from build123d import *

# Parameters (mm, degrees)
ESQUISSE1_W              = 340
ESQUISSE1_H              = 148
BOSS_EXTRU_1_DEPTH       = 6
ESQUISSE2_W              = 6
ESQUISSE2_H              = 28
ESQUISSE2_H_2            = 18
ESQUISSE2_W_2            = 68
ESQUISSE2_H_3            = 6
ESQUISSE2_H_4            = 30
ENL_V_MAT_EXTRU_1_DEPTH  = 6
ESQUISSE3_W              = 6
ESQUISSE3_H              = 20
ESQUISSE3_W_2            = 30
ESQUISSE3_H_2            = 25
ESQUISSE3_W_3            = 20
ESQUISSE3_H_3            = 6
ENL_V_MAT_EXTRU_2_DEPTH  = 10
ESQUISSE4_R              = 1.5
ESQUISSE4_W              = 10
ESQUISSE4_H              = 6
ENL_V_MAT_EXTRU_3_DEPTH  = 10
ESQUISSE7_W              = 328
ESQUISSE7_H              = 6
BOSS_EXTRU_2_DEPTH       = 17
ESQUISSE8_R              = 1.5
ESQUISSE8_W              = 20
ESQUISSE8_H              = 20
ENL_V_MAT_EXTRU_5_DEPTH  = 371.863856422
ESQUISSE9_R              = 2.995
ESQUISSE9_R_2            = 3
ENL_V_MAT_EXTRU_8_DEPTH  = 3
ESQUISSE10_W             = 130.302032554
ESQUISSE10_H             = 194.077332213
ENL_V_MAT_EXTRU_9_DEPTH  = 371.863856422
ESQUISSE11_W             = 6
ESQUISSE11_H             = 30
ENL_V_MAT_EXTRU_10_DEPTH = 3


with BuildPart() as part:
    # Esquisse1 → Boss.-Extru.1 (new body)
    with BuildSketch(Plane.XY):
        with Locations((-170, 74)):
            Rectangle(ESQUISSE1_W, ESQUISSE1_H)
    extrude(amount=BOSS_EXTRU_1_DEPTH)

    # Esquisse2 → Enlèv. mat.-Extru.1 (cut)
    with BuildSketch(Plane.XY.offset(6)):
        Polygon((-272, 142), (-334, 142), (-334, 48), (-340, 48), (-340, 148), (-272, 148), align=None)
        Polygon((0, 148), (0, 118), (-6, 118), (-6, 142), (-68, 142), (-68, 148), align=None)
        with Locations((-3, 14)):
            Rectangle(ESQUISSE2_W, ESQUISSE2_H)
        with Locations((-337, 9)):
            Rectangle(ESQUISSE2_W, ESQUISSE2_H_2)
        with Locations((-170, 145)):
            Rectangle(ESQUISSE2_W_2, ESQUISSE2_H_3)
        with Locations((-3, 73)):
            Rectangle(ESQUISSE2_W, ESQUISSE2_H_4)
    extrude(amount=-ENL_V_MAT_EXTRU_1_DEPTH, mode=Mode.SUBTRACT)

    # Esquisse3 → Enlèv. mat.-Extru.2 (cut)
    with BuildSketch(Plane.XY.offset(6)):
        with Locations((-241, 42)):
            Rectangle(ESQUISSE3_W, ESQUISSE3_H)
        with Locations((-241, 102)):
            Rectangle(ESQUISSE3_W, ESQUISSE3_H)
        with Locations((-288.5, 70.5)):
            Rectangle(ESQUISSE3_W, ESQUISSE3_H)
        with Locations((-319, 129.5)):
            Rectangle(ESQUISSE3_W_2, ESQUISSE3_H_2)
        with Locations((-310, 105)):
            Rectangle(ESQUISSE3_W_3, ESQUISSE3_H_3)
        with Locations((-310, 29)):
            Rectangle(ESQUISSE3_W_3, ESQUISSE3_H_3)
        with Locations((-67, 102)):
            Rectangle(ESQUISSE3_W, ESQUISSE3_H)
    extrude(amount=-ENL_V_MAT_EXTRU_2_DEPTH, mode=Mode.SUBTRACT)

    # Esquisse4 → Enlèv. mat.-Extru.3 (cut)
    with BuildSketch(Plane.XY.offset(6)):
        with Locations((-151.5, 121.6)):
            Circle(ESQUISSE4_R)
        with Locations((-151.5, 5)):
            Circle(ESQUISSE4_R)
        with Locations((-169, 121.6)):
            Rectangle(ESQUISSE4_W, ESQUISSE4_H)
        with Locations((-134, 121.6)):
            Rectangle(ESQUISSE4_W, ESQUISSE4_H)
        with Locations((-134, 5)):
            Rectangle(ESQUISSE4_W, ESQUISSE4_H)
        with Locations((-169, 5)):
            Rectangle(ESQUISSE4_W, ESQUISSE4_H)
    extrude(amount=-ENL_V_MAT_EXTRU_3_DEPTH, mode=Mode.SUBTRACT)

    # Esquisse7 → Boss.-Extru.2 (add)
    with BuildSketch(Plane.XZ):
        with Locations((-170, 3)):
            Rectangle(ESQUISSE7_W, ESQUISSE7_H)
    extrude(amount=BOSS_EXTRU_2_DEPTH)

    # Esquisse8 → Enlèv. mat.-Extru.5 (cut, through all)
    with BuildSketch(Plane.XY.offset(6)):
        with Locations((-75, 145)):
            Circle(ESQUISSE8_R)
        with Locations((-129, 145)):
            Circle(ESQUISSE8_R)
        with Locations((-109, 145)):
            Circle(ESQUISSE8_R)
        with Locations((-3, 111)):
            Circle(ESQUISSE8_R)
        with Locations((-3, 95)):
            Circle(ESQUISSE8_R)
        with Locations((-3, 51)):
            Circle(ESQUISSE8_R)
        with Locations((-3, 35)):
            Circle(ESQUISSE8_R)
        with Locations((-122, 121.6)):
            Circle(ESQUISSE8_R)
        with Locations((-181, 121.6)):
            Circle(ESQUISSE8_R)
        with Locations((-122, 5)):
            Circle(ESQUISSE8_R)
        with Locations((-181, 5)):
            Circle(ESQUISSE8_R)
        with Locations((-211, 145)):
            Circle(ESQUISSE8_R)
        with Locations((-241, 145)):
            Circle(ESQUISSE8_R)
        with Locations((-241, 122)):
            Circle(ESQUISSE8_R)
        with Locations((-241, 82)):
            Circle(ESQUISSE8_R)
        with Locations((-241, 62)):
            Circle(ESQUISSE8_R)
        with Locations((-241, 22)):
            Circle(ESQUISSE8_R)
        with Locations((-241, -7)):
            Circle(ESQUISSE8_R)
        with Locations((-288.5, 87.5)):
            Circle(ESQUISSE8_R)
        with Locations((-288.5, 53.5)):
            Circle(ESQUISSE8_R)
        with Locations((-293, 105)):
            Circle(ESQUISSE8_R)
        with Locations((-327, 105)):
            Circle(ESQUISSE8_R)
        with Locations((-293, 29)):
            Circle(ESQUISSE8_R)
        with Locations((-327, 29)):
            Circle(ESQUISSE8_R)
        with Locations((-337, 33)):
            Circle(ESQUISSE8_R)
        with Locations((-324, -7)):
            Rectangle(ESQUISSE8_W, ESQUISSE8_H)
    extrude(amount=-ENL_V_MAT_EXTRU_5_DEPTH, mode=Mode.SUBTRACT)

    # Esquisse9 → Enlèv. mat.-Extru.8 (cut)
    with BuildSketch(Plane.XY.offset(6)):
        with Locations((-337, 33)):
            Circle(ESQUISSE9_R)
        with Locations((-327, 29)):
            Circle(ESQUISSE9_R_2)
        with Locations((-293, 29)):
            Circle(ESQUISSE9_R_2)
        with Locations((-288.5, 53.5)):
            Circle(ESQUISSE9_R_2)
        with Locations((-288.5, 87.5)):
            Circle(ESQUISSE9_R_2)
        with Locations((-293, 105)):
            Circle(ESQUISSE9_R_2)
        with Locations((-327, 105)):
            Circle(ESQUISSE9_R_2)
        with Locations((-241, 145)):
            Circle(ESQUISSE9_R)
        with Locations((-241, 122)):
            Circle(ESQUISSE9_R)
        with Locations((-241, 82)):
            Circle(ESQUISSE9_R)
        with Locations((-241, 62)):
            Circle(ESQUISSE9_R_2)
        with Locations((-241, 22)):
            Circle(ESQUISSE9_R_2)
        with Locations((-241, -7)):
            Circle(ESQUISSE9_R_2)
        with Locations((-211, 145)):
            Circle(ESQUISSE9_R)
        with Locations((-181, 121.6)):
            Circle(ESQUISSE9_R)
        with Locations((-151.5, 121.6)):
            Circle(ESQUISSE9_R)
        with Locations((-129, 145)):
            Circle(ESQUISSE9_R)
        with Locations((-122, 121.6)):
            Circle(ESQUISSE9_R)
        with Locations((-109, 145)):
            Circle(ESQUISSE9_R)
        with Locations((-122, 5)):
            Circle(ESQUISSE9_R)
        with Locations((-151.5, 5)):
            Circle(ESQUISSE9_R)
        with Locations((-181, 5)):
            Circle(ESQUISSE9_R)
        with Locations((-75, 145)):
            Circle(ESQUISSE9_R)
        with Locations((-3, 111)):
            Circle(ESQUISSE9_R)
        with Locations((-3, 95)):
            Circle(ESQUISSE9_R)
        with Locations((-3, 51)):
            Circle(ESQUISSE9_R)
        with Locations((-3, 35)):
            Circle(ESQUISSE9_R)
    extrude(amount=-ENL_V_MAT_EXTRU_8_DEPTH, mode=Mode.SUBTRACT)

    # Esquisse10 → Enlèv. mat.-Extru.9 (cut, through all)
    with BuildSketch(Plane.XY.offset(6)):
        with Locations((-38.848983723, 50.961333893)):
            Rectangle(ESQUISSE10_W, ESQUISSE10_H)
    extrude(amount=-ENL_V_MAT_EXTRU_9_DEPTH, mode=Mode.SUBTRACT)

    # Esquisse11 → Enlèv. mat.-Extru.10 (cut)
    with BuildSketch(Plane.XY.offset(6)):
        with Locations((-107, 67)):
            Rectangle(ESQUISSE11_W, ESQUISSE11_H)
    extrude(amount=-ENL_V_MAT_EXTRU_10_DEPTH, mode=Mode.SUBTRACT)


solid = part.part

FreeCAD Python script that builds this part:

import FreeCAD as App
import Part
import Sketcher
from FreeCAD import Vector
Q = App.Units.Quantity


def add_polygon(sketch, points):
    """Adds a closed chain of lines whose ends are joined by coincident constraints."""
    first, n = sketch.GeometryCount, len(points)
    for a, b in zip(points, points[1:] + points[:1]):
        sketch.addGeometry(Part.LineSegment(App.Vector(*a, 0), App.Vector(*b, 0)), False)
    for i in range(n):
        sketch.addConstraint(Sketcher.Constraint("Coincident", first + i, 2, first + (i + 1) % n, 1))

doc = App.newDocument("Part")
body = doc.addObject("PartDesign::Body", "Body")

sketch1 = body.newObject("Sketcher::SketchObject", "Sketch")
sketch1.AttachmentSupport = (doc.getObject("XY_Plane"), [""])
sketch1.MapMode = "FlatFace"
add_polygon(sketch1, [(-340, 148), (-340, 0), (0, 0), (0, 148)])
sketch1.addConstraint(Sketcher.Constraint("Vertical", 0))
sketch1.addConstraint(Sketcher.Constraint("Horizontal", 1))
sketch1.addConstraint(Sketcher.Constraint("Vertical", 2))
sketch1.addConstraint(Sketcher.Constraint("Horizontal", 3))
sketch1.addConstraint(Sketcher.Constraint("Coincident", 1, 2, -1, 1))
sketch1.addConstraint(Sketcher.Constraint("DistanceX", 1, 1, 1, 2, Q("340 mm")))
sketch1.addConstraint(Sketcher.Constraint("DistanceY", 0, 2, 0, 1, Q("148 mm")))
pad1 = body.newObject("PartDesign::Pad", "Pad")
pad1.Profile = sketch1
pad1.Length = 6

sketch2 = body.newObject("Sketcher::SketchObject", "Sketch001")
sketch2.AttachmentSupport = (doc.getObject("XY_Plane"), [""])
sketch2.MapMode = "FlatFace"
sketch2.AttachmentOffset = App.Placement(Vector(0, 0, 6), App.Rotation())
add_polygon(sketch2, [(-334, 142), (-272, 142), (-272, 148), (-340, 148), (-340, 48), (-334, 48)])
add_polygon(sketch2, [(0, 118), (0, 148), (-68, 148), (-68, 142), (-6, 142), (-6, 118)])
add_polygon(sketch2, [(-6, 28), (-6, 0), (0, 0), (0, 28)])
add_polygon(sketch2, [(-340, 18), (-340, 0), (-334, 0), (-334, 18)])
add_polygon(sketch2, [(-204, 148), (-204, 142), (-136, 142), (-136, 148)])
add_polygon(sketch2, [(-6, 88), (-6, 58), (0, 58), (0, 88)])
sketch2.addConstraint(Sketcher.Constraint("Horizontal", 0))
sketch2.addConstraint(Sketcher.Constraint("Vertical", 1))
sketch2.addConstraint(Sketcher.Constraint("Horizontal", 2))
sketch2.addConstraint(Sketcher.Constraint("Vertical", 3))
sketch2.addConstraint(Sketcher.Constraint("Horizontal", 4))
sketch2.addConstraint(Sketcher.Constraint("Vertical", 5))
sketch2.addConstraint(Sketcher.Constraint("Vertical", 6))
sketch2.addConstraint(Sketcher.Constraint("Horizontal", 7))
sketch2.addConstraint(Sketcher.Constraint("Vertical", 8))
sketch2.addConstraint(Sketcher.Constraint("Horizontal", 9))
sketch2.addConstraint(Sketcher.Constraint("Vertical", 10))
sketch2.addConstraint(Sketcher.Constraint("Horizontal", 11))
sketch2.addConstraint(Sketcher.Constraint("Vertical", 12))
sketch2.addConstraint(Sketcher.Constraint("Horizontal", 13))
sketch2.addConstraint(Sketcher.Constraint("Vertical", 14))
sketch2.addConstraint(Sketcher.Constraint("Horizontal", 15))
sketch2.addConstraint(Sketcher.Constraint("Vertical", 16))
sketch2.addConstraint(Sketcher.Constraint("Horizontal", 17))
sketch2.addConstraint(Sketcher.Constraint("Vertical", 18))
sketch2.addConstraint(Sketcher.Constraint("Horizontal", 19))
sketch2.addConstraint(Sketcher.Constraint("Vertical", 20))
sketch2.addConstraint(Sketcher.Constraint("Horizontal", 21))
sketch2.addConstraint(Sketcher.Constraint("Vertical", 22))
sketch2.addConstraint(Sketcher.Constraint("Horizontal", 23))
sketch2.addConstraint(Sketcher.Constraint("Vertical", 24))
sketch2.addConstraint(Sketcher.Constraint("Horizontal", 25))
sketch2.addConstraint(Sketcher.Constraint("Vertical", 26))
sketch2.addConstraint(Sketcher.Constraint("Horizontal", 27))
sketch2.addConstraint(Sketcher.Constraint("Coincident", 13, 2, -1, 1))
sketch2.addConstraint(Sketcher.Constraint("PointOnObject", 6, 2, -2))
sketch2.addConstraint(Sketcher.Constraint("PointOnObject", 16, 2, -1))
sketch2.addConstraint(Sketcher.Constraint("PointOnObject", 25, 2, -2))
sketch2.addConstraint(Sketcher.Constraint("Horizontal", 2, 2, 6, 2))
sketch2.addConstraint(Sketcher.Constraint("Horizontal", 5, 2, 8, 2))
sketch2.addConstraint(Sketcher.Constraint("Horizontal", 9, 2, 20, 2))
sketch2.addConstraint(Sketcher.Constraint("Horizontal", 7, 2, 22, 2))
sketch2.addConstraint(Sketcher.Constraint("Vertical", 10, 2, 12, 2))
sketch2.addConstraint(Sketcher.Constraint("Vertical", 3, 2, 16, 2))
sketch2.addConstraint(Sketcher.Constraint("Vertical", 5, 2, 17, 2))
sketch2.addConstraint(Sketcher.Constraint("Vertical", 15, 2, 24, 2))
sketch2.addConstraint(Sketcher.Constraint("Equal", 2, 7))
sketch2.addConstraint(Sketcher.Constraint("Equal", 0, 9))
sketch2.addConstraint(Sketcher.Constraint("Equal", 7, 21))
sketch2.addConstraint(Sketcher.Constraint("Equal", 27, 1))
sketch2.addConstraint(Sketcher.Constraint("Equal", 6, 24))
sketch2.addConstraint(Sketcher.Constraint("DistanceX", 0, 1, 0, 2, Q("62 mm")))
sketch2.addConstraint(Sketcher.Constraint("DistanceX", 2, 2, 2, 1, Q("68 mm")))
sketch2.addConstraint(Sketcher.Constraint("DistanceY", 3, 2, 3, 1, Q("100 mm")))
sketch2.addConstraint(Sketcher.Constraint("DistanceY", 6, 1, 6, 2, Q("30 mm")))
sketch2.addConstraint(Sketcher.Constraint("DistanceY", 12, 2, 12, 1, Q("28 mm")))
sketch2.addConstraint(Sketcher.Constraint("DistanceY", 16, 2, 16, 1, Q("18 mm")))
sketch2.addConstraint(Sketcher.Constraint("DistanceX", 0, 2, -1, 1, Q("272 mm")))
sketch2.addConstraint(Sketcher.Constraint("DistanceY", -1, 1, 0, 2, Q("142 mm")))
sketch2.addConstraint(Sketcher.Constraint("DistanceX", 20, 2, -1, 1, Q("204 mm")))
sketch2.addConstraint(Sketcher.Constraint("DistanceY", -1, 1, 24, 2, Q("58 mm")))
pocket1 = body.newObject("PartDesign::Pocket", "Pocket")
pocket1.Profile = sketch2
pocket1.Length = 6

sketch3 = body.newObject("Sketcher::SketchObject", "Sketch002")
sketch3.AttachmentSupport = (doc.getObject("XY_Plane"), [""])
sketch3.MapMode = "FlatFace"
sketch3.AttachmentOffset = App.Placement(Vector(0, 0, 6), App.Rotation())
add_polygon(sketch3, [(-244, 52), (-244, 32), (-238, 32), (-238, 52)])
add_polygon(sketch3, [(-244, 112), (-244, 92), (-238, 92), (-238, 112)])
add_polygon(sketch3, [(-292, 80), (-292, 60), (-286, 60), (-286, 80)])
add_polygon(sketch3, [(-334, 142), (-334, 117), (-304, 117), (-304, 142)])
add_polygon(sketch3, [(-320, 108), (-320, 102), (-300, 102), (-300, 108)])
add_polygon(sketch3, [(-320, 32), (-320, 26), (-300, 26), (-300, 32)])
add_polygon(sketch3, [(-70, 112), (-70, 92), (-64, 92), (-64, 112)])
sketch3.addConstraint(Sketcher.Constraint("Vertical", 0))
sketch3.addConstraint(Sketcher.Constraint("Horizontal", 1))
sketch3.addConstraint(Sketcher.Constraint("Vertical", 2))
sketch3.addConstraint(Sketcher.Constraint("Horizontal", 3))
sketch3.addConstraint(Sketcher.Constraint("Vertical", 4))
sketch3.addConstraint(Sketcher.Constraint("Horizontal", 5))
sketch3.addConstraint(Sketcher.Constraint("Vertical", 6))
sketch3.addConstraint(Sketcher.Constraint("Horizontal", 7))
sketch3.addConstraint(Sketcher.Constraint("Vertical", 8))
sketch3.addConstraint(Sketcher.Constraint("Horizontal", 9))
sketch3.addConstraint(Sketcher.Constraint("Vertical", 10))
sketch3.addConstraint(Sketcher.Constraint("Horizontal", 11))
sketch3.addConstraint(Sketcher.Constraint("Vertical", 12))
sketch3.addConstraint(Sketcher.Constraint("Horizontal", 13))
sketch3.addConstraint(Sketcher.Constraint("Vertical", 14))
sketch3.addConstraint(Sketcher.Constraint("Horizontal", 15))
sketch3.addConstraint(Sketcher.Constraint("Vertical", 16))
sketch3.addConstraint(Sketcher.Constraint("Horizontal", 17))
sketch3.addConstraint(Sketcher.Constraint("Vertical", 18))
sketch3.addConstraint(Sketcher.Constraint("Horizontal", 19))
sketch3.addConstraint(Sketcher.Constraint("Vertical", 20))
sketch3.addConstraint(Sketcher.Constraint("Horizontal", 21))
sketch3.addConstraint(Sketcher.Constraint("Vertical", 22))
sketch3.addConstraint(Sketcher.Constraint("Horizontal", 23))
sketch3.addConstraint(Sketcher.Constraint("Vertical", 24))
sketch3.addConstraint(Sketcher.Constraint("Horizontal", 25))
sketch3.addConstraint(Sketcher.Constraint("Vertical", 26))
sketch3.addConstraint(Sketcher.Constraint("Horizontal", 27))
sketch3.addConstraint(Sketcher.Constraint("Horizontal", 1, 2, 22, 2))
sketch3.addConstraint(Sketcher.Constraint("Horizontal", 5, 2, 24, 2))
sketch3.addConstraint(Sketcher.Constraint("Horizontal", 7, 2, 26, 2))
sketch3.addConstraint(Sketcher.Constraint("Vertical", 3, 2, 4, 2))
sketch3.addConstraint(Sketcher.Constraint("Vertical", 2, 2, 5, 2))
sketch3.addConstraint(Sketcher.Constraint("Vertical", 19, 2, 20, 2))
sketch3.addConstraint(Sketcher.Constraint("Vertical", 18, 2, 21, 2))
sketch3.addConstraint(Sketcher.Constraint("Equal", 7, 9))
sketch3.addConstraint(Sketcher.Constraint("Equal", 11, 25))
sketch3.addConstraint(Sketcher.Constraint("Equal", 23, 0))
sketch3.addConstraint(Sketcher.Constraint("Equal", 2, 4))
sketch3.addConstraint(Sketcher.Constraint("Equal", 6, 8))
sketch3.addConstraint(Sketcher.Constraint("Equal", 27, 16))
sketch3.addConstraint(Sketcher.Constraint("Equal", 18, 20))
sketch3.addConstraint(Sketcher.Constraint("DistanceX", 1, 1, 1, 2, Q("6 mm")))
sketch3.addConstraint(Sketcher.Constraint("DistanceX", 13, 1, 13, 2, Q("30 mm")))
sketch3.addConstraint(Sketcher.Constraint("DistanceX", 17, 1, 17, 2, Q("20 mm")))
sketch3.addConstraint(Sketcher.Constraint("DistanceY", 12, 2, 12, 1, Q("25 mm")))
sketch3.addConstraint(Sketcher.Constraint("DistanceX", 0, 2, -1, 1, Q("244 mm")))
sketch3.addConstraint(Sketcher.Constraint("DistanceY", -1, 1, 0, 2, Q("32 mm")))
sketch3.addConstraint(Sketcher.Constraint("DistanceY", -1, 1, 4, 2, Q("92 mm")))
sketch3.addConstraint(Sketcher.Constraint("DistanceX", 12, 2, -1, 1, Q("334 mm")))
sketch3.addConstraint(Sketcher.Constraint("DistanceY", -1, 1, 12, 2, Q("117 mm")))
sketch3.addConstraint(Sketcher.Constraint("DistanceX", 16, 2, -1, 1, Q("320 mm")))
sketch3.addConstraint(Sketcher.Constraint("DistanceY", -1, 1, 16, 2, Q("102 mm")))
sketch3.addConstraint(Sketcher.Constraint("DistanceX", 24, 2, -1, 1, Q("70 mm")))
sketch3.addConstraint(Sketcher.Constraint("DistanceX", 8, 2, -1, 1, Q("291.5 mm")))
sketch3.addConstraint(Sketcher.Constraint("DistanceY", -1, 1, 8, 2, Q("60.5 mm")))
pocket2 = body.newObject("PartDesign::Pocket", "Pocket001")
pocket2.Profile = sketch3
pocket2.Length = 10

sketch4 = body.newObject("Sketcher::SketchObject", "Sketch003")
sketch4.AttachmentSupport = (doc.getObject("XY_Plane"), [""])
sketch4.MapMode = "FlatFace"
sketch4.AttachmentOffset = App.Placement(Vector(0, 0, 6), App.Rotation())
sketch4.addGeometry(Part.Circle(Vector(-151.5, 121.6, 0), Vector(0, 0, 1), 1.5), False)
sketch4.addGeometry(Part.Circle(Vector(-151.5, 5, 0), Vector(0, 0, 1), 1.5), False)
add_polygon(sketch4, [(-174, 124.6), (-174, 118.6), (-164, 118.6), (-164, 124.6)])
add_polygon(sketch4, [(-139, 124.6), (-139, 118.6), (-129, 118.6), (-129, 124.6)])
add_polygon(sketch4, [(-139, 8), (-139, 2), (-129, 2), (-129, 8)])
add_polygon(sketch4, [(-174, 8), (-174, 2), (-164, 2), (-164, 8)])
sketch4.addConstraint(Sketcher.Constraint("Vertical", 2))
sketch4.addConstraint(Sketcher.Constraint("Horizontal", 3))
sketch4.addConstraint(Sketcher.Constraint("Vertical", 4))
sketch4.addConstraint(Sketcher.Constraint("Horizontal", 5))
sketch4.addConstraint(Sketcher.Constraint("Vertical", 6))
sketch4.addConstraint(Sketcher.Constraint("Horizontal", 7))
sketch4.addConstraint(Sketcher.Constraint("Vertical", 8))
sketch4.addConstraint(Sketcher.Constraint("Horizontal", 9))
sketch4.addConstraint(Sketcher.Constraint("Vertical", 10))
sketch4.addConstraint(Sketcher.Constraint("Horizontal", 11))
sketch4.addConstraint(Sketcher.Constraint("Vertical", 12))
sketch4.addConstraint(Sketcher.Constraint("Horizontal", 13))
sketch4.addConstraint(Sketcher.Constraint("Vertical", 14))
sketch4.addConstraint(Sketcher.Constraint("Horizontal", 15))
sketch4.addConstraint(Sketcher.Constraint("Vertical", 16))
sketch4.addConstraint(Sketcher.Constraint("Horizontal", 17))
sketch4.addConstraint(Sketcher.Constraint("Equal", 0, 1))
sketch4.addConstraint(Sketcher.Constraint("Horizontal", 3, 2, 6, 2))
sketch4.addConstraint(Sketcher.Constraint("Horizontal", 5, 2, 8, 2))
sketch4.addConstraint(Sketcher.Constraint("Horizontal", 11, 2, 14, 2))
sketch4.addConstraint(Sketcher.Constraint("Horizontal", 13, 2, 16, 2))
sketch4.addConstraint(Sketcher.Constraint("Vertical", 0, 3, 1, 3))
sketch4.addConstraint(Sketcher.Constraint("Vertical", 9, 2, 10, 2))
sketch4.addConstraint(Sketcher.Constraint("Vertical", 8, 2, 11, 2))
sketch4.addConstraint(Sketcher.Constraint("Vertical", 5, 2, 14, 2))
sketch4.addConstraint(Sketcher.Constraint("Vertical", 4, 2, 15, 2))
sketch4.addConstraint(Sketcher.Constraint("Equal", 5, 7))
sketch4.addConstraint(Sketcher.Constraint("Equal", 8, 10))
sketch4.addConstraint(Sketcher.Constraint("Diameter", 0, Q("3 mm")))
sketch4.addConstraint(Sketcher.Constraint("DistanceX", 3, 1, 3, 2, Q("10 mm")))
sketch4.addConstraint(Sketcher.Constraint("DistanceY", 2, 2, 2, 1, Q("6 mm")))
sketch4.addConstraint(Sketcher.Constraint("DistanceY", -1, 1, 1, 3, Q("5 mm")))
sketch4.addConstraint(Sketcher.Constraint("DistanceX", 2, 2, -1, 1, Q("174 mm")))
sketch4.addConstraint(Sketcher.Constraint("DistanceX", 6, 2, -1, 1, Q("139 mm")))
sketch4.addConstraint(Sketcher.Constraint("DistanceY", -1, 1, 10, 2, Q("2 mm")))
sketch4.addConstraint(Sketcher.Constraint("DistanceY", 2, 2, 0, 3, Q("3 mm")))
sketch4.addConstraint(Sketcher.Constraint("DistanceX", 0, 3, -1, 1, Q("151.5 mm")))
sketch4.addConstraint(Sketcher.Constraint("DistanceY", -1, 1, 0, 3, Q("121.6 mm")))
pocket3 = body.newObject("PartDesign::Pocket", "Pocket002")
pocket3.Profile = sketch4
pocket3.Length = 10

sketch5 = body.newObject("Sketcher::SketchObject", "Sketch004")
sketch5.AttachmentSupport = (doc.getObject("XZ_Plane"), [""])
sketch5.MapMode = "FlatFace"
add_polygon(sketch5, [(-334, 6), (-334, 0), (-6, 0), (-6, 6)])
sketch5.addConstraint(Sketcher.Constraint("Vertical", 0))
sketch5.addConstraint(Sketcher.Constraint("Horizontal", 1))
sketch5.addConstraint(Sketcher.Constraint("Vertical", 2))
sketch5.addConstraint(Sketcher.Constraint("Horizontal", 3))
sketch5.addConstraint(Sketcher.Constraint("PointOnObject", 0, 2, -1))
sketch5.addConstraint(Sketcher.Constraint("DistanceX", 1, 1, 1, 2, Q("328 mm")))
sketch5.addConstraint(Sketcher.Constraint("DistanceY", 0, 2, 0, 1, Q("6 mm")))
sketch5.addConstraint(Sketcher.Constraint("DistanceX", 0, 2, -1, 1, Q("334 mm")))
pad2 = body.newObject("PartDesign::Pad", "Pad001")
pad2.Profile = sketch5
pad2.Length = 17

sketch6 = body.newObject("Sketcher::SketchObject", "Sketch005")
sketch6.AttachmentSupport = (doc.getObject("XY_Plane"), [""])
sketch6.MapMode = "FlatFace"
sketch6.AttachmentOffset = App.Placement(Vector(0, 0, 6), App.Rotation())
sketch6.addGeometry(Part.Circle(Vector(-75, 145, 0), Vector(0, 0, 1), 1.5), False)
sketch6.addGeometry(Part.Circle(Vector(-129, 145, 0), Vector(0, 0, 1), 1.5), False)
sketch6.addGeometry(Part.Circle(Vector(-109, 145, 0), Vector(0, 0, 1), 1.5), False)
sketch6.addGeometry(Part.Circle(Vector(-3, 111, 0), Vector(0, 0, 1), 1.5), False)
sketch6.addGeometry(Part.Circle(Vector(-3, 95, 0), Vector(0, 0, 1), 1.5), False)
sketch6.addGeometry(Part.Circle(Vector(-3, 51, 0), Vector(0, 0, 1), 1.5), False)
sketch6.addGeometry(Part.Circle(Vector(-3, 35, 0), Vector(0, 0, 1), 1.5), False)
sketch6.addGeometry(Part.Circle(Vector(-122, 121.6, 0), Vector(0, 0, 1), 1.5), False)
sketch6.addGeometry(Part.Circle(Vector(-181, 121.6, 0), Vector(0, 0, 1), 1.5), False)
sketch6.addGeometry(Part.Circle(Vector(-122, 5, 0), Vector(0, 0, 1), 1.5), False)
sketch6.addGeometry(Part.Circle(Vector(-181, 5, 0), Vector(0, 0, 1), 1.5), False)
sketch6.addGeometry(Part.Circle(Vector(-211, 145, 0), Vector(0, 0, 1), 1.5), False)
sketch6.addGeometry(Part.Circle(Vector(-241, 145, 0), Vector(0, 0, 1), 1.5), False)
sketch6.addGeometry(Part.Circle(Vector(-241, 122, 0), Vector(0, 0, 1), 1.5), False)
sketch6.addGeometry(Part.Circle(Vector(-241, 82, 0), Vector(0, 0, 1), 1.5), False)
sketch6.addGeometry(Part.Circle(Vector(-241, 62, 0), Vector(0, 0, 1), 1.5), False)
sketch6.addGeometry(Part.Circle(Vector(-241, 22, 0), Vector(0, 0, 1), 1.5), False)
sketch6.addGeometry(Part.Circle(Vector(-241, -7, 0), Vector(0, 0, 1), 1.5), False)
sketch6.addGeometry(Part.Circle(Vector(-288.5, 87.5, 0), Vector(0, 0, 1), 1.5), False)
sketch6.addGeometry(Part.Circle(Vector(-288.5, 53.5, 0), Vector(0, 0, 1), 1.5), False)
sketch6.addGeometry(Part.Circle(Vector(-293, 105, 0), Vector(0, 0, 1), 1.5), False)
sketch6.addGeometry(Part.Circle(Vector(-327, 105, 0), Vector(0, 0, 1), 1.5), False)
sketch6.addGeometry(Part.Circle(Vector(-293, 29, 0), Vector(0, 0, 1), 1.5), False)
sketch6.addGeometry(Part.Circle(Vector(-327, 29, 0), Vector(0, 0, 1), 1.5), False)
sketch6.addGeometry(Part.Circle(Vector(-337, 33, 0), Vector(0, 0, 1), 1.5), False)
add_polygon(sketch6, [(-334, 3), (-334, -17), (-314, -17), (-314, 3)])
sketch6.addConstraint(Sketcher.Constraint("Vertical", 25))
sketch6.addConstraint(Sketcher.Constraint("Horizontal", 26))
sketch6.addConstraint(Sketcher.Constraint("Vertical", 27))
sketch6.addConstraint(Sketcher.Constraint("Horizontal", 28))
sketch6.addConstraint(Sketcher.Constraint("Equal", 0, 1))
sketch6.addConstraint(Sketcher.Constraint("Equal", 1, 2))
sketch6.addConstraint(Sketcher.Constraint("Equal", 2, 3))
sketch6.addConstraint(Sketcher.Constraint("Equal", 3, 4))
sketch6.addConstraint(Sketcher.Constraint("Equal", 4, 5))
sketch6.addConstraint(Sketcher.Constraint("Equal", 5, 6))
sketch6.addConstraint(Sketcher.Constraint("Equal", 6, 7))
sketch6.addConstraint(Sketcher.Constraint("Equal", 7, 8))
sketch6.addConstraint(Sketcher.Constraint("Equal", 8, 9))
sketch6.addConstraint(Sketcher.Constraint("Equal", 9, 10))
sketch6.addConstraint(Sketcher.Constraint("Equal", 10, 11))
sketch6.addConstraint(Sketcher.Constraint("Equal", 11, 12))
sketch6.addConstraint(Sketcher.Constraint("Equal", 12, 13))
sketch6.addConstraint(Sketcher.Constraint("Equal", 13, 14))
sketch6.addConstraint(Sketcher.Constraint("Equal", 14, 15))
sketch6.addConstraint(Sketcher.Constraint("Equal", 15, 16))
sketch6.addConstraint(Sketcher.Constraint("Equal", 16, 17))
sketch6.addConstraint(Sketcher.Constraint("Equal", 17, 18))
sketch6.addConstraint(Sketcher.Constraint("Equal", 18, 19))
sketch6.addConstraint(Sketcher.Constraint("Equal", 19, 20))
sketch6.addConstraint(Sketcher.Constraint("Equal", 20, 21))
sketch6.addConstraint(Sketcher.Constraint("Equal", 21, 22))
sketch6.addConstraint(Sketcher.Constraint("Equal", 22, 23))
sketch6.addConstraint(Sketcher.Constraint("Equal", 23, 24))
sketch6.addConstraint(Sketcher.Constraint("Horizontal", 0, 3, 1, 3))
sketch6.addConstraint(Sketcher.Constraint("Horizontal", 1, 3, 2, 3))
sketch6.addConstraint(Sketcher.Constraint("Horizontal", 7, 3, 8, 3))
sketch6.addConstraint(Sketcher.Constraint("Horizontal", 9, 3, 10, 3))
sketch6.addConstraint(Sketcher.Constraint("Horizontal", 2, 3, 11, 3))
sketch6.addConstraint(Sketcher.Constraint("Horizontal", 11, 3, 12, 3))
sketch6.addConstraint(Sketcher.Constraint("Horizontal", 20, 3, 21, 3))
sketch6.addConstraint(Sketcher.Constraint("Horizontal", 22, 3, 23, 3))
sketch6.addConstraint(Sketcher.Constraint("Vertical", 3, 3, 4, 3))
sketch6.addConstraint(Sketcher.Constraint("Vertical", 4, 3, 5, 3))
sketch6.addConstraint(Sketcher.Constraint("Vertical", 5, 3, 6, 3))
sketch6.addConstraint(Sketcher.Constraint("Vertical", 7, 3, 9, 3))
sketch6.addConstraint(Sketcher.Constraint("Vertical", 8, 3, 10, 3))
sketch6.addConstraint(Sketcher.Constraint("Vertical", 12, 3, 13, 3))
sketch6.addConstraint(Sketcher.Constraint("Vertical", 13, 3, 14, 3))
sketch6.addConstraint(Sketcher.Constraint("Vertical", 14, 3, 15, 3))
sketch6.addConstraint(Sketcher.Constraint("Vertical", 15, 3, 16, 3))
sketch6.addConstraint(Sketcher.Constraint("Vertical", 16, 3, 17, 3))
sketch6.addConstraint(Sketcher.Constraint("Vertical", 18, 3, 19, 3))
sketch6.addConstraint(Sketcher.Constraint("Vertical", 20, 3, 22, 3))
sketch6.addConstraint(Sketcher.Constraint("Vertical", 21, 3, 23, 3))
sketch6.addConstraint(Sketcher.Constraint("Equal", 28, 25))
sketch6.addConstraint(Sketcher.Constraint("Diameter", 0, Q("3 mm")))
sketch6.addConstraint(Sketcher.Constraint("DistanceX", 26, 1, 26, 2, Q("20 mm")))
sketch6.addConstraint(Sketcher.Constraint("DistanceX", 0, 3, -1, 1, Q("75 mm")))
sketch6.addConstraint(Sketcher.Constraint("DistanceY", -1, 1, 0, 3, Q("145 mm")))
sketch6.addConstraint(Sketcher.Constraint("DistanceX", 1, 3, -1, 1, Q("129 mm")))
sketch6.addConstraint(Sketcher.Constraint("DistanceX", 2, 3, -1, 1, Q("109 mm")))
sketch6.addConstraint(Sketcher.Constraint("DistanceX", 3, 3, -1, 1, Q("3 mm")))
sketch6.addConstraint(Sketcher.Constraint("DistanceY", -1, 1, 3, 3, Q("111 mm")))
sketch6.addConstraint(Sketcher.Constraint("DistanceY", -1, 1, 4, 3, Q("95 mm")))
sketch6.addConstraint(Sketcher.Constraint("DistanceY", -1, 1, 5, 3, Q("51 mm")))
sketch6.addConstraint(Sketcher.Constraint("DistanceY", -1, 1, 6, 3, Q("35 mm")))
sketch6.addConstraint(Sketcher.Constraint("DistanceX", 7, 3, -1, 1, Q("122 mm")))
sketch6.addConstraint(Sketcher.Constraint("DistanceX", 8, 3, -1, 1, Q("181 mm")))
sketch6.addConstraint(Sketcher.Constraint("DistanceY", -1, 1, 9, 3, Q("5 mm")))
sketch6.addConstraint(Sketcher.Constraint("DistanceX", 11, 3, -1, 1, Q("211 mm")))
sketch6.addConstraint(Sketcher.Constraint("DistanceX", 12, 3, -1, 1, Q("241 mm")))
sketch6.addConstraint(Sketcher.Constraint("DistanceY", -1, 1, 13, 3, Q("122 mm")))
sketch6.addConstraint(Sketcher.Constraint("DistanceY", -1, 1, 14, 3, Q("82 mm")))
sketch6.addConstraint(Sketcher.Constraint("DistanceY", -1, 1, 15, 3, Q("62 mm")))
sketch6.addConstraint(Sketcher.Constraint("DistanceY", -1, 1, 16, 3, Q("22 mm")))
sketch6.addConstraint(Sketcher.Constraint("DistanceY", 17, 3, -1, 1, Q("7 mm")))
sketch6.addConstraint(Sketcher.Constraint("DistanceX", 20, 3, -1, 1, Q("293 mm")))
sketch6.addConstraint(Sketcher.Constraint("DistanceY", -1, 1, 20, 3, Q("105 mm")))
sketch6.addConstraint(Sketcher.Constraint("DistanceX", 21, 3, -1, 1, Q("327 mm")))
sketch6.addConstraint(Sketcher.Constraint("DistanceY", -1, 1, 22, 3, Q("29 mm")))
sketch6.addConstraint(Sketcher.Constraint("DistanceX", 24, 3, -1, 1, Q("337 mm")))
sketch6.addConstraint(Sketcher.Constraint("DistanceY", -1, 1, 24, 3, Q("33 mm")))
sketch6.addConstraint(Sketcher.Constraint("DistanceX", 25, 2, -1, 1, Q("334 mm")))
sketch6.addConstraint(Sketcher.Constraint("DistanceY", 25, 2, -1, 1, Q("17 mm")))
sketch6.addConstraint(Sketcher.Constraint("DistanceY", 19, 3, 18, 3, Q("34 mm")))
sketch6.addConstraint(Sketcher.Constraint("DistanceY", -1, 1, 7, 3, Q("121.6 mm")))
sketch6.addConstraint(Sketcher.Constraint("DistanceX", 18, 3, -1, 1, Q("288.5 mm")))
sketch6.addConstraint(Sketcher.Constraint("DistanceY", -1, 1, 18, 3, Q("87.5 mm")))
pocket4 = body.newObject("PartDesign::Pocket", "Pocket003")
pocket4.Profile = sketch6
pocket4.Type = "ThroughAll"

sketch7 = body.newObject("Sketcher::SketchObject", "Sketch006")
sketch7.AttachmentSupport = (doc.getObject("XY_Plane"), [""])
sketch7.MapMode = "FlatFace"
sketch7.AttachmentOffset = App.Placement(Vector(0, 0, 6), App.Rotation())
sketch7.addGeometry(Part.Circle(Vector(-337, 33, 0), Vector(0, 0, 1), 3), False)
sketch7.addGeometry(Part.Circle(Vector(-327, 29, 0), Vector(0, 0, 1), 3), False)
sketch7.addGeometry(Part.Circle(Vector(-293, 29, 0), Vector(0, 0, 1), 3), False)
sketch7.addGeometry(Part.Circle(Vector(-288.5, 53.5, 0), Vector(0, 0, 1), 3), False)
sketch7.addGeometry(Part.Circle(Vector(-288.5, 87.5, 0), Vector(0, 0, 1), 3), False)
sketch7.addGeometry(Part.Circle(Vector(-293, 105, 0), Vector(0, 0, 1), 3), False)
sketch7.addGeometry(Part.Circle(Vector(-327, 105, 0), Vector(0, 0, 1), 3), False)
sketch7.addGeometry(Part.Circle(Vector(-241, 145, 0), Vector(0, 0, 1), 3), False)
sketch7.addGeometry(Part.Circle(Vector(-241, 122, 0), Vector(0, 0, 1), 3), False)
sketch7.addGeometry(Part.Circle(Vector(-241, 82, 0), Vector(0, 0, 1), 3), False)
sketch7.addGeometry(Part.Circle(Vector(-241, 62, 0), Vector(0, 0, 1), 3), False)
sketch7.addGeometry(Part.Circle(Vector(-241, 22, 0), Vector(0, 0, 1), 3), False)
sketch7.addGeometry(Part.Circle(Vector(-241, -7, 0), Vector(0, 0, 1), 3), False)
sketch7.addGeometry(Part.Circle(Vector(-211, 145, 0), Vector(0, 0, 1), 3), False)
sketch7.addGeometry(Part.Circle(Vector(-181, 121.6, 0), Vector(0, 0, 1), 3), False)
sketch7.addGeometry(Part.Circle(Vector(-151.5, 121.6, 0), Vector(0, 0, 1), 3), False)
sketch7.addGeometry(Part.Circle(Vector(-129, 145, 0), Vector(0, 0, 1), 3), False)
sketch7.addGeometry(Part.Circle(Vector(-122, 121.6, 0), Vector(0, 0, 1), 3), False)
sketch7.addGeometry(Part.Circle(Vector(-109, 145, 0), Vector(0, 0, 1), 3), False)
sketch7.addGeometry(Part.Circle(Vector(-122, 5, 0), Vector(0, 0, 1), 3), False)
sketch7.addGeometry(Part.Circle(Vector(-151.5, 5, 0), Vector(0, 0, 1), 3), False)
sketch7.addGeometry(Part.Circle(Vector(-181, 5, 0), Vector(0, 0, 1), 3), False)
sketch7.addGeometry(Part.Circle(Vector(-75, 145, 0), Vector(0, 0, 1), 3), False)
sketch7.addGeometry(Part.Circle(Vector(-3, 111, 0), Vector(0, 0, 1), 3), False)
sketch7.addGeometry(Part.Circle(Vector(-3, 95, 0), Vector(0, 0, 1), 3), False)
sketch7.addGeometry(Part.Circle(Vector(-3, 51, 0), Vector(0, 0, 1), 3), False)
sketch7.addGeometry(Part.Circle(Vector(-3, 35, 0), Vector(0, 0, 1), 3), False)
sketch7.addConstraint(Sketcher.Constraint("Equal", 1, 2))
sketch7.addConstraint(Sketcher.Constraint("Equal", 2, 3))
sketch7.addConstraint(Sketcher.Constraint("Equal", 3, 4))
sketch7.addConstraint(Sketcher.Constraint("Equal", 4, 5))
sketch7.addConstraint(Sketcher.Constraint("Equal", 5, 6))
sketch7.addConstraint(Sketcher.Constraint("Equal", 0, 7))
sketch7.addConstraint(Sketcher.Constraint("Equal", 7, 8))
sketch7.addConstraint(Sketcher.Constraint("Equal", 8, 9))
sketch7.addConstraint(Sketcher.Constraint("Equal", 6, 10))
sketch7.addConstraint(Sketcher.Constraint("Equal", 10, 11))
sketch7.addConstraint(Sketcher.Constraint("Equal", 11, 12))
sketch7.addConstraint(Sketcher.Constraint("Equal", 9, 13))
sketch7.addConstraint(Sketcher.Constraint("Equal", 13, 14))
sketch7.addConstraint(Sketcher.Constraint("Equal", 14, 15))
sketch7.addConstraint(Sketcher.Constraint("Equal", 15, 16))
sketch7.addConstraint(Sketcher.Constraint("Equal", 16, 17))
sketch7.addConstraint(Sketcher.Constraint("Equal", 17, 18))
sketch7.addConstraint(Sketcher.Constraint("Equal", 18, 19))
sketch7.addConstraint(Sketcher.Constraint("Equal", 19, 20))
sketch7.addConstraint(Sketcher.Constraint("Equal", 20, 21))
sketch7.addConstraint(Sketcher.Constraint("Equal", 21, 22))
sketch7.addConstraint(Sketcher.Constraint("Equal", 22, 23))
sketch7.addConstraint(Sketcher.Constraint("Equal", 23, 24))
sketch7.addConstraint(Sketcher.Constraint("Equal", 24, 25))
sketch7.addConstraint(Sketcher.Constraint("Equal", 25, 26))
sketch7.addConstraint(Sketcher.Constraint("Horizontal", 1, 3, 2, 3))
sketch7.addConstraint(Sketcher.Constraint("Horizontal", 5, 3, 6, 3))
sketch7.addConstraint(Sketcher.Constraint("Horizontal", 7, 3, 13, 3))
sketch7.addConstraint(Sketcher.Constraint("Horizontal", 14, 3, 15, 3))
sketch7.addConstraint(Sketcher.Constraint("Horizontal", 13, 3, 16, 3))
sketch7.addConstraint(Sketcher.Constraint("Horizontal", 15, 3, 17, 3))
sketch7.addConstraint(Sketcher.Constraint("Horizontal", 16, 3, 18, 3))
sketch7.addConstraint(Sketcher.Constraint("Horizontal", 19, 3, 20, 3))
sketch7.addConstraint(Sketcher.Constraint("Horizontal", 20, 3, 21, 3))
sketch7.addConstraint(Sketcher.Constraint("Horizontal", 18, 3, 22, 3))
sketch7.addConstraint(Sketcher.Constraint("Vertical", 3, 3, 4, 3))
sketch7.addConstraint(Sketcher.Constraint("Vertical", 2, 3, 5, 3))
sketch7.addConstraint(Sketcher.Constraint("Vertical", 1, 3, 6, 3))
sketch7.addConstraint(Sketcher.Constraint("Vertical", 7, 3, 8, 3))
sketch7.addConstraint(Sketcher.Constraint("Vertical", 8, 3, 9, 3))
sketch7.addConstraint(Sketcher.Constraint("Vertical", 9, 3, 10, 3))
sketch7.addConstraint(Sketcher.Constraint("Vertical", 10, 3, 11, 3))
sketch7.addConstraint(Sketcher.Constraint("Vertical", 11, 3, 12, 3))
sketch7.addConstraint(Sketcher.Constraint("Vertical", 17, 3, 19, 3))
sketch7.addConstraint(Sketcher.Constraint("Vertical", 15, 3, 20, 3))
sketch7.addConstraint(Sketcher.Constraint("Vertical", 14, 3, 21, 3))
sketch7.addConstraint(Sketcher.Constraint("Vertical", 23, 3, 24, 3))
sketch7.addConstraint(Sketcher.Constraint("Vertical", 24, 3, 25, 3))
sketch7.addConstraint(Sketcher.Constraint("Vertical", 25, 3, 26, 3))
sketch7.addConstraint(Sketcher.Constraint("Diameter", 1, Q("6 mm")))
sketch7.addConstraint(Sketcher.Constraint("Diameter", 0, Q("5.99 mm")))
sketch7.addConstraint(Sketcher.Constraint("DistanceX", 0, 3, -1, 1, Q("337 mm")))
sketch7.addConstraint(Sketcher.Constraint("DistanceY", -1, 1, 0, 3, Q("33 mm")))
sketch7.addConstraint(Sketcher.Constraint("DistanceX", 1, 3, -1, 1, Q("327 mm")))
sketch7.addConstraint(Sketcher.Constraint("DistanceY", -1, 1, 1, 3, Q("29 mm")))
sketch7.addConstraint(Sketcher.Constraint("DistanceX", 2, 3, -1, 1, Q("293 mm")))
sketch7.addConstraint(Sketcher.Constraint("DistanceY", -1, 1, 5, 3, Q("105 mm")))
sketch7.addConstraint(Sketcher.Constraint("DistanceX", 7, 3, -1, 1, Q("241 mm")))
sketch7.addConstraint(Sketcher.Constraint("DistanceY", -1, 1, 7, 3, Q("145 mm")))
sketch7.addConstraint(Sketcher.Constraint("DistanceY", -1, 1, 8, 3, Q("122 mm")))
sketch7.addConstraint(Sketcher.Constraint("DistanceY", -1, 1, 9, 3, Q("82 mm")))
sketch7.addConstraint(Sketcher.Constraint("DistanceY", -1, 1, 10, 3, Q("62 mm")))
sketch7.addConstraint(Sketcher.Constraint("DistanceY", -1, 1, 11, 3, Q("22 mm")))
sketch7.addConstraint(Sketcher.Constraint("DistanceY", 12, 3, -1, 1, Q("7 mm")))
sketch7.addConstraint(Sketcher.Constraint("DistanceX", 13, 3, -1, 1, Q("211 mm")))
sketch7.addConstraint(Sketcher.Constraint("DistanceX", 14, 3, -1, 1, Q("181 mm")))
sketch7.addConstraint(Sketcher.Constraint("DistanceX", 16, 3, -1, 1, Q("129 mm")))
sketch7.addConstraint(Sketcher.Constraint("DistanceX", 17, 3, -1, 1, Q("122 mm")))
sketch7.addConstraint(Sketcher.Constraint("DistanceX", 18, 3, -1, 1, Q("109 mm")))
sketch7.addConstraint(Sketcher.Constraint("DistanceY", -1, 1, 19, 3, Q("5 mm")))
sketch7.addConstraint(Sketcher.Constraint("DistanceX", 22, 3, -1, 1, Q("75 mm")))
sketch7.addConstraint(Sketcher.Constraint("DistanceX", 23, 3, -1, 1, Q("3 mm")))
sketch7.addConstraint(Sketcher.Constraint("DistanceY", -1, 1, 23, 3, Q("111 mm")))
sketch7.addConstraint(Sketcher.Constraint("DistanceY", -1, 1, 24, 3, Q("95 mm")))
sketch7.addConstraint(Sketcher.Constraint("DistanceY", -1, 1, 25, 3, Q("51 mm")))
sketch7.addConstraint(Sketcher.Constraint("DistanceY", -1, 1, 26, 3, Q("35 mm")))
sketch7.addConstraint(Sketcher.Constraint("DistanceY", 3, 3, 4, 3, Q("34 mm")))
sketch7.addConstraint(Sketcher.Constraint("DistanceX", 3, 3, -1, 1, Q("288.5 mm")))
sketch7.addConstraint(Sketcher.Constraint("DistanceY", -1, 1, 3, 3, Q("53.5 mm")))
sketch7.addConstraint(Sketcher.Constraint("DistanceY", -1, 1, 14, 3, Q("121.6 mm")))
sketch7.addConstraint(Sketcher.Constraint("DistanceX", 15, 3, -1, 1, Q("151.5 mm")))
pocket5 = body.newObject("PartDesign::Pocket", "Pocket004")
pocket5.Profile = sketch7
pocket5.Length = 3

sketch8 = body.newObject("Sketcher::SketchObject", "Sketch007")
sketch8.AttachmentSupport = (doc.getObject("XY_Plane"), [""])
sketch8.MapMode = "FlatFace"
sketch8.AttachmentOffset = App.Placement(Vector(0, 0, 6), App.Rotation())
add_polygon(sketch8, [(-104, 148), (-104, -46), (26, -46), (26, 148)])
sketch8.addConstraint(Sketcher.Constraint("Vertical", 0))
sketch8.addConstraint(Sketcher.Constraint("Horizontal", 1))
sketch8.addConstraint(Sketcher.Constraint("Vertical", 2))
sketch8.addConstraint(Sketcher.Constraint("Horizontal", 3))
sketch8.addConstraint(Sketcher.Constraint("DistanceX", 0, 2, -1, 1, Q("104 mm")))
sketch8.addConstraint(Sketcher.Constraint("DistanceY", -1, 1, 2, 2, Q("148 mm")))
sketch8.addConstraint(Sketcher.Constraint("DistanceX", 1, 1, 1, 2, Q("130.302033 mm")))
sketch8.addConstraint(Sketcher.Constraint("DistanceY", 0, 2, 0, 1, Q("194.077332 mm")))
pocket6 = body.newObject("PartDesign::Pocket", "Pocket005")
pocket6.Profile = sketch8
pocket6.Type = "ThroughAll"

sketch9 = body.newObject("Sketcher::SketchObject", "Sketch008")
sketch9.AttachmentSupport = (doc.getObject("XY_Plane"), [""])
sketch9.MapMode = "FlatFace"
sketch9.AttachmentOffset = App.Placement(Vector(0, 0, 6), App.Rotation())
add_polygon(sketch9, [(-110, 82), (-110, 52), (-104, 52), (-104, 82)])
sketch9.addConstraint(Sketcher.Constraint("Vertical", 0))
sketch9.addConstraint(Sketcher.Constraint("Horizontal", 1))
sketch9.addConstraint(Sketcher.Constraint("Vertical", 2))
sketch9.addConstraint(Sketcher.Constraint("Horizontal", 3))
sketch9.addConstraint(Sketcher.Constraint("DistanceX", 1, 1, 1, 2, Q("6 mm")))
sketch9.addConstraint(Sketcher.Constraint("DistanceY", 0, 2, 0, 1, Q("30 mm")))
sketch9.addConstraint(Sketcher.Constraint("DistanceX", 0, 2, -1, 1, Q("110 mm")))
sketch9.addConstraint(Sketcher.Constraint("DistanceY", -1, 1, 0, 2, Q("52 mm")))
pocket7 = body.newObject("PartDesign::Pocket", "Pocket006")
pocket7.Profile = sketch9
pocket7.Length = 3

doc.recompute()
